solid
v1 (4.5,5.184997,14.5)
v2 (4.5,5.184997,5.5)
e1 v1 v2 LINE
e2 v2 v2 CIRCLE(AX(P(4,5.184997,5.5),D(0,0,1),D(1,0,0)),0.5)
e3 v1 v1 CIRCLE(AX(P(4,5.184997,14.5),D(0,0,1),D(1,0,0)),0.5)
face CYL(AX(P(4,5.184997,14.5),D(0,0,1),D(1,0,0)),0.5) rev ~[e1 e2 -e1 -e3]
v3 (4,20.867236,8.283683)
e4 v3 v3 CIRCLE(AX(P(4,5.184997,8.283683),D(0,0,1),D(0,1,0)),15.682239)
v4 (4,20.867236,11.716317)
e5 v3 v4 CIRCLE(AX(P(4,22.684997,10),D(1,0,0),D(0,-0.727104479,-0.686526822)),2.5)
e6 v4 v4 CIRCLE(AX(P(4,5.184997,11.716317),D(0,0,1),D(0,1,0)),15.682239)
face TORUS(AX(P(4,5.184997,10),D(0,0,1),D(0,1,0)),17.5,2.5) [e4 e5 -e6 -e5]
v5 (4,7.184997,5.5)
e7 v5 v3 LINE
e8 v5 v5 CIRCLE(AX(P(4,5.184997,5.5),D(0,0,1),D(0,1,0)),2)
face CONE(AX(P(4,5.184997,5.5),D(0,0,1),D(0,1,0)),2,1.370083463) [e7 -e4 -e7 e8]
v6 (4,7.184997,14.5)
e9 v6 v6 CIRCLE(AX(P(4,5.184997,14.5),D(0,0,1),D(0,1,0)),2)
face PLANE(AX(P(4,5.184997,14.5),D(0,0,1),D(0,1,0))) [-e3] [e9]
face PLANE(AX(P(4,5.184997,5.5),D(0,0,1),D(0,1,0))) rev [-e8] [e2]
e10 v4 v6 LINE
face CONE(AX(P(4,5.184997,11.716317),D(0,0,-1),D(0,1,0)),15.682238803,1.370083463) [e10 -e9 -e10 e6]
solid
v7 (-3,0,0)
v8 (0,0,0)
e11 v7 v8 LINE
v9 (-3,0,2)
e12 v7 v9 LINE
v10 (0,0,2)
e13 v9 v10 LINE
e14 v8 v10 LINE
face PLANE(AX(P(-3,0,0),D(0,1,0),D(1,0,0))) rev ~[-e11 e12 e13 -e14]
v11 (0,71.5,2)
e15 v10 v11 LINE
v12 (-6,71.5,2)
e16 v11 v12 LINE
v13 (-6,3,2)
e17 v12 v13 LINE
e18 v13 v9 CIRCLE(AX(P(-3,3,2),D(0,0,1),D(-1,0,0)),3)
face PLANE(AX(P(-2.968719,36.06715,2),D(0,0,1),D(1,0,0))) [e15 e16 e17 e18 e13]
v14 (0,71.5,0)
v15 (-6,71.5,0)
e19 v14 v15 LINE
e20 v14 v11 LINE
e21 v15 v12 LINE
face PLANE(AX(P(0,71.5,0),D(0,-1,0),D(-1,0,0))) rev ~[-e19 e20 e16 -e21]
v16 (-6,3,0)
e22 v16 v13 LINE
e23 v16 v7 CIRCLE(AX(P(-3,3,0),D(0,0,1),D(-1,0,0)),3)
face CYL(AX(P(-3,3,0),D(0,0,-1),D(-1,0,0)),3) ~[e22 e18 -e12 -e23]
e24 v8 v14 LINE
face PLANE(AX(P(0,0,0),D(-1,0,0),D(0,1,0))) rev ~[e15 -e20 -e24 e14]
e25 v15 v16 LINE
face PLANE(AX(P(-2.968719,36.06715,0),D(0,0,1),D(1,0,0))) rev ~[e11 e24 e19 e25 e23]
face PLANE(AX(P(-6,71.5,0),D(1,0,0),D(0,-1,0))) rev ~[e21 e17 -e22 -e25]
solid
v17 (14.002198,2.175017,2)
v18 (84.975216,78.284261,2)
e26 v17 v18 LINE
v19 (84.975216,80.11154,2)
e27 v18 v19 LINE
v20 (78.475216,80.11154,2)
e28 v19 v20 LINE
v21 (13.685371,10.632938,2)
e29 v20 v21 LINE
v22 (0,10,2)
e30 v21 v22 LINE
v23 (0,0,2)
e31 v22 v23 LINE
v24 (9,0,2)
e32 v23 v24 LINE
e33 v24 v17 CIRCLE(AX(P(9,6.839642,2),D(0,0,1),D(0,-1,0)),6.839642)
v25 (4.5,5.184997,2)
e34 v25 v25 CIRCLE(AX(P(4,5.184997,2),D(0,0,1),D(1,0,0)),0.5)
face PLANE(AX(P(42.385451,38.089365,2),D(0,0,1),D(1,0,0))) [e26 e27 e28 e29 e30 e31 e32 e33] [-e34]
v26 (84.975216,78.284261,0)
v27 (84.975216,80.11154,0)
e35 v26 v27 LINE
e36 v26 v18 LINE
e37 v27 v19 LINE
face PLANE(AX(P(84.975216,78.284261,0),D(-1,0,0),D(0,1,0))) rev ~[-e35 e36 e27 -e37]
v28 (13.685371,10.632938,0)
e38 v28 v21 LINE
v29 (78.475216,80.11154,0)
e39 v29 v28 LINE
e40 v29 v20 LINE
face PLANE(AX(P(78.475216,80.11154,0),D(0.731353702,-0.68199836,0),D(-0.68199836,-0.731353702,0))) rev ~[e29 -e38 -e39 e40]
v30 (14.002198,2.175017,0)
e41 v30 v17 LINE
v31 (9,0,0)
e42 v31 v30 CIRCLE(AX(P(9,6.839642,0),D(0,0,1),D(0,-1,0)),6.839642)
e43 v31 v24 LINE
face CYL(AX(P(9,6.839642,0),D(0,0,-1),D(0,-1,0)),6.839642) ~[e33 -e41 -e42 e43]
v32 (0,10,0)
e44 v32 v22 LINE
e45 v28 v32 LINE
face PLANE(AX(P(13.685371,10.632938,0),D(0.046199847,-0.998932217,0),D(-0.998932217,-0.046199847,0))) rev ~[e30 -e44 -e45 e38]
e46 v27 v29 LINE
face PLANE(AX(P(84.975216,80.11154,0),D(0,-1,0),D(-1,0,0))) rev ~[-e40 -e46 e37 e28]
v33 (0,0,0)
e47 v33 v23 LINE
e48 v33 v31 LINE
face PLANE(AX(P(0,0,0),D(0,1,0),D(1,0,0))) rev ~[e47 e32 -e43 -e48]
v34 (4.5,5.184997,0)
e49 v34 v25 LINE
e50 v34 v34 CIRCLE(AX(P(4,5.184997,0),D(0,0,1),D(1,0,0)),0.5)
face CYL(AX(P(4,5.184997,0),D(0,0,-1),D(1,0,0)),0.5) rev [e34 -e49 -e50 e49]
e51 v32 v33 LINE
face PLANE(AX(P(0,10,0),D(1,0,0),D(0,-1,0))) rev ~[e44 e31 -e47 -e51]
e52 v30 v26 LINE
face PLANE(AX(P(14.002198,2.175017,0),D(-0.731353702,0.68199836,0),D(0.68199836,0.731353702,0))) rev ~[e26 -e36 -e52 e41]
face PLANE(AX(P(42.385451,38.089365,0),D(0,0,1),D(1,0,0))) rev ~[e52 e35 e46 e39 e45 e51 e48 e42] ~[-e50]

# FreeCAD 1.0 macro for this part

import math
import FreeCAD as App
import Part
import Sketcher
Q = App.Units.Quantity

doc = App.newDocument("Part")
body = doc.addObject("PartDesign::Body", "Body")

sketch1 = doc.addObject("Sketcher::SketchObject", "Sketch")
body.addObject(sketch1)
sketch1.AttachmentSupport = (doc.XY_Plane, [""])
sketch1.MapMode = "FlatFace"
sketch1.addGeometry([
    Part.LineSegment(App.Vector(0, 10, 0), App.Vector(0, 0, 0)),
    Part.LineSegment(App.Vector(0, 0, 0), App.Vector(9, 0, 0)),
    Part.ArcOfCircle(Part.Circle(App.Vector(9, 6.8, 0), App.Vector(0, 0, 1), 6.8), math.radians(-90), math.radians(-43)),
    Part.LineSegment(App.Vector(14, 2.2, 0), App.Vector(85, 78.3, 0)),
    Part.LineSegment(App.Vector(85, 78.3, 0), App.Vector(85, 80.1, 0)),
    Part.LineSegment(App.Vector(85, 80.1, 0), App.Vector(78.5, 80.1, 0)),
    Part.LineSegment(App.Vector(78.5, 80.1, 0), App.Vector(13.7, 10.6, 0)),
    Part.LineSegment(App.Vector(13.7, 10.6, 0), App.Vector(0, 10, 0)),
    Part.Circle(App.Vector(4, 5.2, 0), App.Vector(0, 0, 1), 0.5),
], False)
sketch1.addConstraint([
    Sketcher.Constraint("Coincident", 0, 2, 1, 1),
    Sketcher.Constraint("Tangent", 1, 2, 2, 1),
    Sketcher.Constraint("Tangent", 2, 2, 3, 1),
    Sketcher.Constraint("Coincident", 3, 2, 4, 1),
    Sketcher.Constraint("Coincident", 4, 2, 5, 1),
    Sketcher.Constraint("Coincident", 5, 2, 6, 1),
    Sketcher.Constraint("Coincident", 6, 2, 7, 1),
    Sketcher.Constraint("Coincident", 7, 2, 0, 1),
    Sketcher.Constraint("Vertical", 0),
    Sketcher.Constraint("Horizontal", 1),
    Sketcher.Constraint("Vertical", 4),
    Sketcher.Constraint("Horizontal", 5),
    Sketcher.Constraint("Coincident", 0, 2, -1, 1),
    Sketcher.Constraint("Parallel", 3, 6),
    Sketcher.Constraint("Diameter", 8, 1.0),
    Sketcher.Constraint("DistanceX", 1, 1, 1, 2, 9.0),
    Sketcher.Constraint("DistanceY", 0, 2, 0, 1, 10.0),
    Sketcher.Constraint("Angle", 3, Q("47 deg")),
    Sketcher.Constraint("Distance", 6, 95.0),
    Sketcher.Constraint("DistanceX", 5, 2, 5, 1, 6.5),
    Sketcher.Constraint("DistanceX", -1, 1, 8, 3, 4.0),
    Sketcher.Constraint("Distance", 7, 13.7),
    Sketcher.Constraint("Radius", 2, 6.839642),
    Sketcher.Constraint("DistanceY", 4, 1, 4, 2, 1.827278),
    Sketcher.Constraint("DistanceY", 2, 2, 8, 3, 3.009979),
])
pad1 = doc.addObject("PartDesign::Pad", "Pad")
body.addObject(pad1)
pad1.Profile = sketch1
pad1.Length = 2
body2 = doc.addObject("PartDesign::Body", "Body001")

sketch2 = doc.addObject("Sketcher::SketchObject", "Sketch001")
body2.addObject(sketch2)
sketch2.AttachmentSupport = (doc.getObject("XY_Plane001"), [""])
sketch2.MapMode = "FlatFace"
sketch2.addGeometry([
    Part.LineSegment(App.Vector(-3, 0, 0), App.Vector(0, 0, 0)),
    Part.LineSegment(App.Vector(0, 0, 0), App.Vector(0, 71.5, 0)),
    Part.LineSegment(App.Vector(0, 71.5, 0), App.Vector(-6, 71.5, 0)),
    Part.LineSegment(App.Vector(-6, 71.5, 0), App.Vector(-6, 3, 0)),
    Part.ArcOfCircle(Part.Circle(App.Vector(-3, 3, 0), App.Vector(0, 0, 1), 3), math.radians(180), math.radians(270)),
], False)
sketch2.addConstraint([
    Sketcher.Constraint("Coincident", 0, 2, 1, 1),
    Sketcher.Constraint("Coincident", 1, 2, 2, 1),
    Sketcher.Constraint("Coincident", 2, 2, 3, 1),
    Sketcher.Constraint("Tangent", 3, 2, 4, 1),
    Sketcher.Constraint("Tangent", 4, 2, 0, 1),
    Sketcher.Constraint("Horizontal", 0),
    Sketcher.Constraint("Vertical", 1),
    Sketcher.Constraint("Horizontal", 2),
    Sketcher.Constraint("Vertical", 3),
    Sketcher.Constraint("Coincident", 0, 2, -1, 1),
    Sketcher.Constraint("Radius", 4, 3.0),
    Sketcher.Constraint("DistanceX", 0, 1, 0, 2, 3.0),
    Sketcher.Constraint("DistanceY", 1, 1, 1, 2, 71.5),
])
pad2 = doc.addObject("PartDesign::Pad", "Pad001")
body2.addObject(pad2)
pad2.Profile = sketch2
pad2.Length = 2
body3 = doc.addObject("PartDesign::Body", "Body002")

sketch3 = doc.addObject("Sketcher::SketchObject", "Sketch002")
body3.addObject(sketch3)
sketch3.AttachmentSupport = (doc.getObject("YZ_Plane002"), [""])
sketch3.MapMode = "FlatFace"
sketch3.AttachmentOffset = App.Placement(App.Vector(0, 0, 4), App.Rotation())
sketch3.addGeometry([
    Part.LineSegment(App.Vector(7.2, 5.5, 0), App.Vector(20.9, 8.3, 0)),
    Part.ArcOfCircle(Part.Circle(App.Vector(22.7, 10, 0), App.Vector(0, 0, 1), 2.5), math.radians(-137), math.radians(137)),
    Part.LineSegment(App.Vector(20.9, 11.7, 0), App.Vector(7.2, 14.5, 0)),
    Part.LineSegment(App.Vector(7.2, 14.5, 0), App.Vector(5.2, 14.5, 0)),
    Part.LineSegment(App.Vector(5.2, 14.5, 0), App.Vector(5.2, 5.5, 0)),
    Part.LineSegment(App.Vector(5.2, 5.5, 0), App.Vector(7.2, 5.5, 0)),
], False)
sketch3.addGeometry(Part.LineSegment(App.Vector(5.2, 5.5, 0), App.Vector(5.2, 14.5, 0)), True)
sketch3.addConstraint([
    Sketcher.Constraint("Coincident", 0, 2, 1, 1),
    Sketcher.Constraint("Coincident", 1, 2, 2, 1),
    Sketcher.Constraint("Coincident", 2, 2, 3, 1),
    Sketcher.Constraint("Coincident", 3, 2, 4, 1),
    Sketcher.Constraint("Coincident", 4, 2, 5, 1),
    Sketcher.Constraint("Coincident", 5, 2, 0, 1),
    Sketcher.Constraint("Horizontal", 3),
    Sketcher.Constraint("Vertical", 4),
    Sketcher.Constraint("Horizontal", 5),
    Sketcher.Constraint("Vertical", 6),
    Sketcher.Constraint("Coincident", 6, 1, 4, 2),
    Sketcher.Constraint("Horizontal", 2, 2, 6, 2),
    Sketcher.Constraint("Vertical", 0, 2, 1, 2),
    Sketcher.Constraint("Vertical", 2, 2, 5, 2),
    Sketcher.Constraint("Equal", 0, 2),
    Sketcher.Constraint("Radius", 1, 2.5),
    Sketcher.Constraint("DistanceX", 3, 2, 3, 1, 2.0),
    Sketcher.Constraint("DistanceY", 4, 2, 4, 1, 9.0),
    Sketcher.Constraint("DistanceY", -1, 1, 1, 3, 10.0),
    Sketcher.Constraint("Angle", 0, Q("11.5 deg")),
    Sketcher.Constraint("DistanceX", 2, 2, 1, 3, 15.5),
    Sketcher.Constraint("DistanceX", -1, 1, 1, 3, 22.684997),
])
revolution = doc.addObject("PartDesign::Revolution", "Revolution")
body3.addObject(revolution)
revolution.Profile = sketch3
revolution.ReferenceAxis = (sketch3, ["Axis0"])
revolution.Angle = 360

sketch4 = doc.addObject("Sketcher::SketchObject", "Sketch003")
body3.addObject(sketch4)
sketch4.AttachmentSupport = (doc.getObject("XY_Plane002"), [""])
sketch4.MapMode = "FlatFace"
sketch4.AttachmentOffset = App.Placement(App.Vector(0, 0, 14.5), App.Rotation())
sketch4.addGeometry(Part.Circle(App.Vector(4, 5.2, 0), App.Vector(0, 0, 1), 0.5), False)
sketch4.addConstraint([
    Sketcher.Constraint("Diameter", 0, 1.0),
    Sketcher.Constraint("DistanceX", -1, 1, 0, 3, 4.0),
    Sketcher.Constraint("DistanceY", -1, 1, 0, 3, 5.184997),
])
pocket1 = doc.addObject("PartDesign::Pocket", "Pocket")
body3.addObject(pocket1)
pocket1.Profile = sketch4
pocket1.Length = 25

doc.recompute()
